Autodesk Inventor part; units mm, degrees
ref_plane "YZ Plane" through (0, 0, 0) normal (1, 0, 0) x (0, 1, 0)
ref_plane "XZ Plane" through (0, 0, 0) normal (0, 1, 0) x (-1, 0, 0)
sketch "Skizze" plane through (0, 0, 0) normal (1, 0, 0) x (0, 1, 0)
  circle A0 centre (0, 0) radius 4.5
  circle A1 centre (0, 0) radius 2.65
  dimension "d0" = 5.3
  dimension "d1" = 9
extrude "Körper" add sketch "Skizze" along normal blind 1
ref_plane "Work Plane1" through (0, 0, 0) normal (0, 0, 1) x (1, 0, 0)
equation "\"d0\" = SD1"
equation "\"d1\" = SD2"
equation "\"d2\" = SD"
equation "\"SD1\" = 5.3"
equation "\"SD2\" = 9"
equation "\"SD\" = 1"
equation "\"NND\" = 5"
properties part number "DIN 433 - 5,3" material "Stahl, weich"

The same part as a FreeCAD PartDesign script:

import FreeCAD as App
import Part
import Sketcher

V = App.Vector
Q = App.Units.Quantity

doc = App.newDocument("Part")
body = doc.addObject("PartDesign::Body", "Body")

sketch1 = body.newObject("Sketcher::SketchObject", "Sketch")
sketch1.AttachmentSupport = (doc.getObject("YZ_Plane"), [""])
sketch1.MapMode = "FlatFace"
sketch1.addGeometry([
    Part.Circle(V(0, 0, 0), V(0, 0, 1), 4.5),
    Part.Circle(V(0, 0, 0), V(0, 0, 1), 2.6),
], False)
sketch1.addConstraint([
    Sketcher.Constraint("Coincident", 0, 3, -1, 1),
    Sketcher.Constraint("Coincident", 1, 3, -1, 1),
    Sketcher.Constraint("Diameter", 0, Q("9 mm")),
    Sketcher.Constraint("Diameter", 1, Q("5.3 mm")),
])
pad1 = body.newObject("PartDesign::Pad", "Pad")
pad1.Profile = sketch1
pad1.Length = 1

doc.recompute()
